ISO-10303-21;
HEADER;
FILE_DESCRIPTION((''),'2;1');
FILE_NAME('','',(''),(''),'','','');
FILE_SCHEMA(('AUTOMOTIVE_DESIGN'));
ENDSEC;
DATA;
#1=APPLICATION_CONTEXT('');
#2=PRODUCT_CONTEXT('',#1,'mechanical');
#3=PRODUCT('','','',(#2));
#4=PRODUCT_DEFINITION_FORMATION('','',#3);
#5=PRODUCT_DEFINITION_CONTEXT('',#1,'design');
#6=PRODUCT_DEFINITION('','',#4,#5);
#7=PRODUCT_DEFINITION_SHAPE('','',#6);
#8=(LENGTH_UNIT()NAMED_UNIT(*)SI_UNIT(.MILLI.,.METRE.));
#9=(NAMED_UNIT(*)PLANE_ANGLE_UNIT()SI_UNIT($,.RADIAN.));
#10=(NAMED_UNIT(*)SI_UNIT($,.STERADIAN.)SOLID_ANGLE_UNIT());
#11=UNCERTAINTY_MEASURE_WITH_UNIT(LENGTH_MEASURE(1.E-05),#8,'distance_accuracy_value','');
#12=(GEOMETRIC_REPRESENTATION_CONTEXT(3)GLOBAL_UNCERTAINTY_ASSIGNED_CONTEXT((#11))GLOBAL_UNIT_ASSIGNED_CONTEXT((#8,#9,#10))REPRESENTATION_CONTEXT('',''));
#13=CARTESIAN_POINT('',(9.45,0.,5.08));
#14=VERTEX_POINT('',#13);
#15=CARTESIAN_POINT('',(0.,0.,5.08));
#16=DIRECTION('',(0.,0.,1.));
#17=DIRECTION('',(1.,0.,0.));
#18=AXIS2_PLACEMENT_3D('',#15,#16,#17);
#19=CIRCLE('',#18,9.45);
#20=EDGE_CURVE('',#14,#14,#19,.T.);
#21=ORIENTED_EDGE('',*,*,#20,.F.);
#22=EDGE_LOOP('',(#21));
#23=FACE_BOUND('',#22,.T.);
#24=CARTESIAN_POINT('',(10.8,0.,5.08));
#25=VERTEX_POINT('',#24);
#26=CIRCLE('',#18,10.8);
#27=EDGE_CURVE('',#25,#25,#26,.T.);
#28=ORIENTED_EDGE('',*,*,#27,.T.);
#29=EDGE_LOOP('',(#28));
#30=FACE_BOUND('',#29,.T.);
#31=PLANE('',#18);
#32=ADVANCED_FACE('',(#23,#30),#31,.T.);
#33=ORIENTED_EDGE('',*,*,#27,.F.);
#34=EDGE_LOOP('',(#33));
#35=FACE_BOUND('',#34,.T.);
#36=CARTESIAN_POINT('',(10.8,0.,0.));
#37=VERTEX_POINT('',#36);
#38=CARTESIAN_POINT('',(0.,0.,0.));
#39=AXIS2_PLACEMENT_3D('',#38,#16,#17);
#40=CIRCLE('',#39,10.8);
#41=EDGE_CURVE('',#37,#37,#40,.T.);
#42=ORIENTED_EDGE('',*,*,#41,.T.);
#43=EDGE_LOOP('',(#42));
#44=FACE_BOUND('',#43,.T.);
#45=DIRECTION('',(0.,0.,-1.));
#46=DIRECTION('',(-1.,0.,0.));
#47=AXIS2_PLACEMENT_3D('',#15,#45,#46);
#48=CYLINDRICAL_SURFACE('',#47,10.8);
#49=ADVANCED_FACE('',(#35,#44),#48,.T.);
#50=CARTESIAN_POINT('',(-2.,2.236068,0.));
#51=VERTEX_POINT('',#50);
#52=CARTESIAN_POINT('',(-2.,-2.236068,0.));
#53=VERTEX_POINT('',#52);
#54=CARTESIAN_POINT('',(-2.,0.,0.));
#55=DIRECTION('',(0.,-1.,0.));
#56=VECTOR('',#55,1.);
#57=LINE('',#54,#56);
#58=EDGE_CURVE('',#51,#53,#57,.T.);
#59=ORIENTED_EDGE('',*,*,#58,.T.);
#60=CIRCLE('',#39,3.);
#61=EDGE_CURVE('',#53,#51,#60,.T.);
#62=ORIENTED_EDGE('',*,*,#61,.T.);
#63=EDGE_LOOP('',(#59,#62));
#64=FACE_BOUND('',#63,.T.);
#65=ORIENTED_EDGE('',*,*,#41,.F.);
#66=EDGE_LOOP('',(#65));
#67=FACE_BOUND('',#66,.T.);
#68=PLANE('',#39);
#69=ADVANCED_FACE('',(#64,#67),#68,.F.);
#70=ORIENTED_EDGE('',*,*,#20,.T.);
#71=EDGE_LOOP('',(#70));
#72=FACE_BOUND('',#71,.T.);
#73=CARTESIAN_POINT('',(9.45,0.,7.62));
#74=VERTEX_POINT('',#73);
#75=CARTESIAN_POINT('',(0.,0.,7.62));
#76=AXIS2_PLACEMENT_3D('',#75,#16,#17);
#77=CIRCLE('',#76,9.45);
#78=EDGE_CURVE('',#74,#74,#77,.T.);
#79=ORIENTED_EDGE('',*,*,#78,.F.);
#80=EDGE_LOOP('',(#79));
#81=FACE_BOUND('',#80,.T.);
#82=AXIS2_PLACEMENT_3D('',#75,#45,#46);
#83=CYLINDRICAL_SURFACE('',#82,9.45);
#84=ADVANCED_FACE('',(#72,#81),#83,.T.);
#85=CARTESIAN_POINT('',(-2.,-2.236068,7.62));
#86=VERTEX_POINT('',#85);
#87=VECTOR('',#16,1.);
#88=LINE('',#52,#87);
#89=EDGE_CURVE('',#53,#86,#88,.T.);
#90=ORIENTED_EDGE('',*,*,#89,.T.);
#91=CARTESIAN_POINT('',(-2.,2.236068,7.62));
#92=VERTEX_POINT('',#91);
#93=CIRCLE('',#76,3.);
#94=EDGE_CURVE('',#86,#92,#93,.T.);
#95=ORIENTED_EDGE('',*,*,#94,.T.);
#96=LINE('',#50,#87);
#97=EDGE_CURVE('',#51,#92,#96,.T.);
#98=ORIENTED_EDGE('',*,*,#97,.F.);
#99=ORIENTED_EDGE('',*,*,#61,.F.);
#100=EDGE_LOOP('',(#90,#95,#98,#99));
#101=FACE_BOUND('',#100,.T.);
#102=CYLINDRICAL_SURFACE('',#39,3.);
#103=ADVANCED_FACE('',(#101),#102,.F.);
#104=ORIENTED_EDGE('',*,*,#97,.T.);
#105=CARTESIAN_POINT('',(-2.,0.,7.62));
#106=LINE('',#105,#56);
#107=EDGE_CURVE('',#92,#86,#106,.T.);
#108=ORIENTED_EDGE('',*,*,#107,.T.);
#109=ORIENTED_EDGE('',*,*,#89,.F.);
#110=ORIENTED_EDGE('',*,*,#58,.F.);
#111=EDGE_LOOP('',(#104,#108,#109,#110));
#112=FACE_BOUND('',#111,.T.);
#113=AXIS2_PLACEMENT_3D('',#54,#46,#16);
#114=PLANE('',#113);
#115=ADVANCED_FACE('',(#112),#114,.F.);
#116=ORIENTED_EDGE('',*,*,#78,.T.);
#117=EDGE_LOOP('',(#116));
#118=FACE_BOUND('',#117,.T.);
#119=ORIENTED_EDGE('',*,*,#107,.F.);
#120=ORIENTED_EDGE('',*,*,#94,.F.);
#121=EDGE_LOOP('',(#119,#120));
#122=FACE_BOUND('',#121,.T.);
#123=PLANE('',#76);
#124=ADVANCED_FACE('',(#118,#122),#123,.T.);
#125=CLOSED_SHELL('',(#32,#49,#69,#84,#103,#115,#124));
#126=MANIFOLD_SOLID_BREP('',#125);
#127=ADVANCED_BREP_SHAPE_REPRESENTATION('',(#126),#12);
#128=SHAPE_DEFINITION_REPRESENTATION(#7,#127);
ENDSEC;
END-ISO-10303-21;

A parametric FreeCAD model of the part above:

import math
import FreeCAD as App
import Part
import Sketcher

doc = App.newDocument("Part")
body = doc.addObject("PartDesign::Body", "Body")

sketch1 = doc.addObject("Sketcher::SketchObject", "Sketch")
body.addObject(sketch1)
sketch1.AttachmentSupport = (doc.XY_Plane, [""])
sketch1.MapMode = "FlatFace"
sketch1.addGeometry(Part.Circle(App.Vector(0, 0, 0), App.Vector(0, 0, 1), 11), False)
sketch1.addConstraint(Sketcher.Constraint("Coincident", 0, 3, -1, 1))
sketch1.addConstraint(Sketcher.Constraint("Diameter", 0, 21.6))
pad1 = doc.addObject("PartDesign::Pad", "Pad")
body.addObject(pad1)
pad1.Profile = sketch1
pad1.Length = 5.08

sketch2 = doc.addObject("Sketcher::SketchObject", "Sketch001")
body.addObject(sketch2)
sketch2.AttachmentSupport = (doc.XY_Plane, [""])
sketch2.MapMode = "FlatFace"
sketch2.AttachmentOffset = App.Placement(App.Vector(0, 0, 5.08), App.Rotation())
sketch2.addGeometry(Part.Circle(App.Vector(0, 0, 0), App.Vector(0, 0, 1), 9), False)
sketch2.addConstraint(Sketcher.Constraint("Coincident", 0, 3, -1, 1))
sketch2.addConstraint(Sketcher.Constraint("Diameter", 0, 18.9))
pad2 = doc.addObject("PartDesign::Pad", "Pad001")
body.addObject(pad2)
pad2.Profile = sketch2
pad2.Length = 2.54

sketch3 = doc.addObject("Sketcher::SketchObject", "Sketch002")
body.addObject(sketch3)
sketch3.AttachmentSupport = (doc.XY_Plane, [""])
sketch3.MapMode = "FlatFace"
sketch3.AttachmentOffset = App.Placement(App.Vector(0, 0, 7.62), App.Rotation())
sketch3.addGeometry(Part.ArcOfCircle(Part.Circle(App.Vector(0, 0, 0), App.Vector(0, 0, 1), 3), math.radians(-132), math.radians(132)), False)
sketch3.addGeometry(Part.LineSegment(App.Vector(-2, 2.2, 0), App.Vector(-2, -2.2, 0)), False)
sketch3.addConstraint(Sketcher.Constraint("Coincident", 0, 1, 1, 2))
sketch3.addConstraint(Sketcher.Constraint("Coincident", 1, 1, 0, 2))
sketch3.addConstraint(Sketcher.Constraint("Vertical", 1))
sketch3.addConstraint(Sketcher.Constraint("Coincident", 0, 3, -1, 1))
sketch3.addConstraint(Sketcher.Constraint("Radius", 0, 3.0))
sketch3.addConstraint(Sketcher.Constraint("DistanceX", 0, 1, -1, 1, 2.0))
pocket1 = doc.addObject("PartDesign::Pocket", "Pocket")
body.addObject(pocket1)
pocket1.Profile = sketch3
pocket1.Type = "ThroughAll"

doc.recompute()
